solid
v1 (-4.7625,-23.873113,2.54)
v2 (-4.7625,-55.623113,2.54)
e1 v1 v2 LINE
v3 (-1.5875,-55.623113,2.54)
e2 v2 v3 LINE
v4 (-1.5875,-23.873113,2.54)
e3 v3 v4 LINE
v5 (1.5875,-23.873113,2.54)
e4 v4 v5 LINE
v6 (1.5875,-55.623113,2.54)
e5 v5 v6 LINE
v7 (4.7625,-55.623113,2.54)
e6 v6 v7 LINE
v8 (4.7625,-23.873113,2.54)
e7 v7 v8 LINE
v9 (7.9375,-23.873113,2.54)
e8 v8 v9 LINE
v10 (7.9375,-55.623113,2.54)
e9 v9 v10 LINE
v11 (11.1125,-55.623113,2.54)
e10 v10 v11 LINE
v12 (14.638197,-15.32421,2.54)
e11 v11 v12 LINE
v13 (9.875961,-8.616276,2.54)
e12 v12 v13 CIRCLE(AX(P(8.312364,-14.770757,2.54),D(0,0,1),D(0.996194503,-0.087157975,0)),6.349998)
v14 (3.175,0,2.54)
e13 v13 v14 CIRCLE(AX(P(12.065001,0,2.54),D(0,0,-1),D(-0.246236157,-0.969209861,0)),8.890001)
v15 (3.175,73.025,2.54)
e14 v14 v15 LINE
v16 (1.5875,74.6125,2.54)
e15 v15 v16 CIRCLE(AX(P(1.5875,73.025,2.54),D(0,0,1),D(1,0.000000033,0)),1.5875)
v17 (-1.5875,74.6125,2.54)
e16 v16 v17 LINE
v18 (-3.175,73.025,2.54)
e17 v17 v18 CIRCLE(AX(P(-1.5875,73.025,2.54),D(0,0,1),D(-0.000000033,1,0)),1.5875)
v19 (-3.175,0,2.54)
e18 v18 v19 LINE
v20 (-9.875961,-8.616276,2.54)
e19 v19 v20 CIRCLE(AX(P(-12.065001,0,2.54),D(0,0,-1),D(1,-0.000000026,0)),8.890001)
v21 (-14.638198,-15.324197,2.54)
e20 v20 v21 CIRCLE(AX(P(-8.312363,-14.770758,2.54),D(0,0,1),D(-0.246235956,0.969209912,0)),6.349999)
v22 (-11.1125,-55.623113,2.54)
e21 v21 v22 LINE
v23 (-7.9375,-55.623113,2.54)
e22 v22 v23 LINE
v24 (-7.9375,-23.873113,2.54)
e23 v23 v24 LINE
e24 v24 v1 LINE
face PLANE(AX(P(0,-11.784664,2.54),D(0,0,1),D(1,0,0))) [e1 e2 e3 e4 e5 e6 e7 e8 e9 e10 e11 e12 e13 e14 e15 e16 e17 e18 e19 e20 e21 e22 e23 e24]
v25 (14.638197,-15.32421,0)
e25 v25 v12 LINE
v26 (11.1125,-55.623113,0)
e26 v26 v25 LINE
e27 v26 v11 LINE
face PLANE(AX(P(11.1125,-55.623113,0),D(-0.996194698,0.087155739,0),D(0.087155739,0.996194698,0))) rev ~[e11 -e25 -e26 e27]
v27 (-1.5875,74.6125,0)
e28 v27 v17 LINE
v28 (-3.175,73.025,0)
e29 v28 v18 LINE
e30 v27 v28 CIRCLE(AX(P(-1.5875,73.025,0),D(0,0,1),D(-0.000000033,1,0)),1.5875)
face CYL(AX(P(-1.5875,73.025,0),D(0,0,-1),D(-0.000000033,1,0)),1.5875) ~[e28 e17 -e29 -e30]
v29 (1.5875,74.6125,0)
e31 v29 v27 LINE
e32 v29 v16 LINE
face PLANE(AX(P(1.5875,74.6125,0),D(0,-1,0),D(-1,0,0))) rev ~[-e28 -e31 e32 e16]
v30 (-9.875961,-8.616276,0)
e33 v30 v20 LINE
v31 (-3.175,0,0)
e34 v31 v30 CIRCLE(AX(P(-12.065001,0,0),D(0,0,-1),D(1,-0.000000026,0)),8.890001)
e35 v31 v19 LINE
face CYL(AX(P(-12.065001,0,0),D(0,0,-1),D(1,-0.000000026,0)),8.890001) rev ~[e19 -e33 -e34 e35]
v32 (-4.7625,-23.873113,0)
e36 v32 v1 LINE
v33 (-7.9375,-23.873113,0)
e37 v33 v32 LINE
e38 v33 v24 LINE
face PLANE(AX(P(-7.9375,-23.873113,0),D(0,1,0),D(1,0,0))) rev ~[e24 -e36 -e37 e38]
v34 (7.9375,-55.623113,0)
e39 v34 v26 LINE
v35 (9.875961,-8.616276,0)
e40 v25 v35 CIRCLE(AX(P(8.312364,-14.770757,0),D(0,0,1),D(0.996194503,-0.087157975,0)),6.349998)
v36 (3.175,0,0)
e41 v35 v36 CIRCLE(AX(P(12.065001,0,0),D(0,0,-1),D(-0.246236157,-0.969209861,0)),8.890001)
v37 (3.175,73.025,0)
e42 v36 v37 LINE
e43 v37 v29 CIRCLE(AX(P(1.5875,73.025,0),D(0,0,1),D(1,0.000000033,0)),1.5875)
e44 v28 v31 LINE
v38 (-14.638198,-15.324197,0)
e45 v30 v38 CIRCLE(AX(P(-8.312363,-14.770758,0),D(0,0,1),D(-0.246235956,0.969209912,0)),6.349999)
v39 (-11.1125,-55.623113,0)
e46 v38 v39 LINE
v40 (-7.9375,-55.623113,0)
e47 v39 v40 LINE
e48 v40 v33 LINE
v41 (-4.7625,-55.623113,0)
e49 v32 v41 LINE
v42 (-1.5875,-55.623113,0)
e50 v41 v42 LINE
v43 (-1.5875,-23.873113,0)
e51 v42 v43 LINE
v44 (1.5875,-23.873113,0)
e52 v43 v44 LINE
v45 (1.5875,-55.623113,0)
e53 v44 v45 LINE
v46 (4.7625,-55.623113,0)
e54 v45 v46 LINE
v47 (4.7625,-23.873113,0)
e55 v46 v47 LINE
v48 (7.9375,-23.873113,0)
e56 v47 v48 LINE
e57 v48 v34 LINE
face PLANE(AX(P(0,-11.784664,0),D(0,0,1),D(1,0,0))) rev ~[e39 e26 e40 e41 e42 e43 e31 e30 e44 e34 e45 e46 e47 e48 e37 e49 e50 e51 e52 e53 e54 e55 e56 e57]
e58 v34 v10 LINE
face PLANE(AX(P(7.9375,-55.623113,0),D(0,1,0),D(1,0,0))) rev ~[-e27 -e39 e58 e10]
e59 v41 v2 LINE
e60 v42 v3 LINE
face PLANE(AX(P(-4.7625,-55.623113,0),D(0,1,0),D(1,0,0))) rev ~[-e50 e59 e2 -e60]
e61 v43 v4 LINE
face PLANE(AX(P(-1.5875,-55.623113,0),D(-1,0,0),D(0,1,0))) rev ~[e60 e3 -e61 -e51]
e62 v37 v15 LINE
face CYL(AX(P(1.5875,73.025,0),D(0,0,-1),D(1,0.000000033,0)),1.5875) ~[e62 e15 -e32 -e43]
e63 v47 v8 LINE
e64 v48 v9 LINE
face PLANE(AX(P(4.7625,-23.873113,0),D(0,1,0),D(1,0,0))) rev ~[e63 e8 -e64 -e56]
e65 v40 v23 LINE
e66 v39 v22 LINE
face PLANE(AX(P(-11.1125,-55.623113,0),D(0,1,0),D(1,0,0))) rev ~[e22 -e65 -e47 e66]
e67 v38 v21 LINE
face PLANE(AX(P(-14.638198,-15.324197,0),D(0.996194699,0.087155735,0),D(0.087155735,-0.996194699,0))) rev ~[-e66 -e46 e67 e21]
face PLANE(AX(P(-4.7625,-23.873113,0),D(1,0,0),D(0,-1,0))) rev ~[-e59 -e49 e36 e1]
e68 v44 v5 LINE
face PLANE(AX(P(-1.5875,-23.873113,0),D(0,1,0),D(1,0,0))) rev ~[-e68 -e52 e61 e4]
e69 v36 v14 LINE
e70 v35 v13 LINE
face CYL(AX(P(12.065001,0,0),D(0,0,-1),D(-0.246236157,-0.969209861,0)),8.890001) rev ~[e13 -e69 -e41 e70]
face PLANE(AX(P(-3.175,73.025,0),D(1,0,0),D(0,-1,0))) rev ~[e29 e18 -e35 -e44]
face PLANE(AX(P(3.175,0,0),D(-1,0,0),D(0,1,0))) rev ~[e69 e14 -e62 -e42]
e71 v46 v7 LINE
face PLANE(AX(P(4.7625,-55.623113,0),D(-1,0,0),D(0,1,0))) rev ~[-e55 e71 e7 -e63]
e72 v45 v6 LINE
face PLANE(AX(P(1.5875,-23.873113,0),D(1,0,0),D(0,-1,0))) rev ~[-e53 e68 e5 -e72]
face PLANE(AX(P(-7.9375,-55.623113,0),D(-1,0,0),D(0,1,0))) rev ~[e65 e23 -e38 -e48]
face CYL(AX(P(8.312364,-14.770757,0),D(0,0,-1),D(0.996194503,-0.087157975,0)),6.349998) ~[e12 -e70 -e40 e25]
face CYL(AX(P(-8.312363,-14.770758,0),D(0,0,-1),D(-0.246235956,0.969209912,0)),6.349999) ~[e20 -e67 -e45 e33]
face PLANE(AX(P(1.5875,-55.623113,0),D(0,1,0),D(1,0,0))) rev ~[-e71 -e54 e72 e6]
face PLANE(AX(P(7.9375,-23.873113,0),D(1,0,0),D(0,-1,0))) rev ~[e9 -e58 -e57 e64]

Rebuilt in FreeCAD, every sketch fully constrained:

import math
import FreeCAD as App
import Part
import Sketcher
Q = App.Units.Quantity

doc = App.newDocument("Part")
body = doc.addObject("PartDesign::Body", "Body")

# Sketch on XY plane
sketch1 = body.newObject("Sketcher::SketchObject", "Sketch")
sketch1.AttachmentSupport = (doc.getObject("XY_Plane"), [""])
sketch1.MapMode = "FlatFace"
sketch1.addGeometry([
    Part.LineSegment(App.Vector(1.6, 74.6, 0), App.Vector(-1.6, 74.6, 0)),  # 0
    Part.ArcOfCircle(Part.Circle(App.Vector(-1.6, 73, 0), App.Vector(0, 0, 1), 1.6), math.radians(90), math.radians(180)),  # 1
    Part.LineSegment(App.Vector(-3.2, 73, 0), App.Vector(-3.2, 0, 0)),  # 2
    Part.ArcOfCircle(Part.Circle(App.Vector(-12.1, 0, 0), App.Vector(0, 0, 1), 8.9), math.radians(-76), math.radians(0)),  # 3
    Part.ArcOfCircle(Part.Circle(App.Vector(-8.3, -14.8, 0), App.Vector(0, 0, 1), 6.3), math.radians(104), math.radians(185)),  # 4
    Part.LineSegment(App.Vector(-14.6, -15.3, 0), App.Vector(-11.1, -55.6, 0)),  # 5
    Part.LineSegment(App.Vector(-11.1, -55.6, 0), App.Vector(-7.9, -55.6, 0)),  # 6
    Part.LineSegment(App.Vector(-7.9, -55.6, 0), App.Vector(-7.9, -23.9, 0)),  # 7
    Part.LineSegment(App.Vector(-7.9, -23.9, 0), App.Vector(-4.8, -23.9, 0)),  # 8
    Part.LineSegment(App.Vector(-4.8, -23.9, 0), App.Vector(-4.8, -55.6, 0)),  # 9
    Part.LineSegment(App.Vector(-4.8, -55.6, 0), App.Vector(-1.6, -55.6, 0)),  # 10
    Part.LineSegment(App.Vector(-1.6, -55.6, 0), App.Vector(-1.6, -23.9, 0)),  # 11
    Part.LineSegment(App.Vector(-1.6, -23.9, 0), App.Vector(1.6, -23.9, 0)),  # 12
    Part.LineSegment(App.Vector(1.6, -23.9, 0), App.Vector(1.6, -55.6, 0)),  # 13
    Part.LineSegment(App.Vector(1.6, -55.6, 0), App.Vector(4.8, -55.6, 0)),  # 14
    Part.LineSegment(App.Vector(4.8, -55.6, 0), App.Vector(4.8, -23.9, 0)),  # 15
    Part.LineSegment(App.Vector(4.8, -23.9, 0), App.Vector(7.9, -23.9, 0)),  # 16
    Part.LineSegment(App.Vector(7.9, -23.9, 0), App.Vector(7.9, -55.6, 0)),  # 17
    Part.LineSegment(App.Vector(7.9, -55.6, 0), App.Vector(11.1, -55.6, 0)),  # 18
    Part.LineSegment(App.Vector(11.1, -55.6, 0), App.Vector(14.6, -15.3, 0)),  # 19
    Part.ArcOfCircle(Part.Circle(App.Vector(8.3, -14.8, 0), App.Vector(0, 0, 1), 6.3), math.radians(-5), math.radians(76)),  # 20
    Part.ArcOfCircle(Part.Circle(App.Vector(12.1, 0, 0), App.Vector(0, 0, 1), 8.9), math.radians(-180), math.radians(-104)),  # 21
    Part.LineSegment(App.Vector(3.2, 0, 0), App.Vector(3.2, 73, 0)),  # 22
    Part.ArcOfCircle(Part.Circle(App.Vector(1.6, 73, 0), App.Vector(0, 0, 1), 1.6), math.radians(0), math.radians(90)),  # 23
], False)
sketch1.addConstraint([
    Sketcher.Constraint("Tangent", 0, 2, 1, 1),
    Sketcher.Constraint("Tangent", 1, 2, 2, 1),
    Sketcher.Constraint("Tangent", 2, 2, 3, 2),
    Sketcher.Constraint("Tangent", 3, 1, 4, 1),
    Sketcher.Constraint("Tangent", 4, 2, 5, 1),
    Sketcher.Constraint("Coincident", 5, 2, 6, 1),
    Sketcher.Constraint("Coincident", 6, 2, 7, 1),
    Sketcher.Constraint("Coincident", 7, 2, 8, 1),
    Sketcher.Constraint("Coincident", 8, 2, 9, 1),
    Sketcher.Constraint("Coincident", 9, 2, 10, 1),
    Sketcher.Constraint("Coincident", 10, 2, 11, 1),
    Sketcher.Constraint("Coincident", 11, 2, 12, 1),
    Sketcher.Constraint("Coincident", 12, 2, 13, 1),
    Sketcher.Constraint("Coincident", 13, 2, 14, 1),
    Sketcher.Constraint("Coincident", 14, 2, 15, 1),
    Sketcher.Constraint("Coincident", 15, 2, 16, 1),
    Sketcher.Constraint("Coincident", 16, 2, 17, 1),
    Sketcher.Constraint("Coincident", 17, 2, 18, 1),
    Sketcher.Constraint("Coincident", 18, 2, 19, 1),
    Sketcher.Constraint("Coincident", 19, 2, 20, 1),
    Sketcher.Constraint("Tangent", 20, 2, 21, 2),
    Sketcher.Constraint("Tangent", 21, 1, 22, 1),
    Sketcher.Constraint("Tangent", 22, 2, 23, 1),
    Sketcher.Constraint("Tangent", 23, 2, 0, 1),
    Sketcher.Constraint("Horizontal", 0),
    Sketcher.Constraint("Vertical", 2),
    Sketcher.Constraint("Horizontal", 6),
    Sketcher.Constraint("Vertical", 7),
    Sketcher.Constraint("Horizontal", 8),
    Sketcher.Constraint("Vertical", 9),
    Sketcher.Constraint("Horizontal", 10),
    Sketcher.Constraint("Vertical", 11),
    Sketcher.Constraint("Horizontal", 12),
    Sketcher.Constraint("Vertical", 13),
    Sketcher.Constraint("Horizontal", 14),
    Sketcher.Constraint("Vertical", 15),
    Sketcher.Constraint("Horizontal", 16),
    Sketcher.Constraint("Vertical", 17),
    Sketcher.Constraint("Horizontal", 18),
    Sketcher.Constraint("Vertical", 22),
    Sketcher.Constraint("Equal", 4, 20),
    Sketcher.Constraint("Equal", 3, 21),
    Sketcher.Constraint("Equal", 1, 23),
    Sketcher.Constraint("Symmetric", 3, 3, 21, 3, -1, 1),
    Sketcher.Constraint("Symmetric", 4, 3, 20, 3, -2),
    Sketcher.Constraint("Symmetric", 10, 2, 13, 2, -2),
    Sketcher.Constraint("Symmetric", 8, 2, 15, 2, -2),
    Sketcher.Constraint("Symmetric", 6, 2, 17, 2, -2),
    Sketcher.Constraint("Horizontal", 6, 2, 9, 2),
    Sketcher.Constraint("Horizontal", 8, 2, 11, 2),
    Sketcher.Constraint("Vertical", 0, 2, 10, 2),
    Sketcher.Constraint("Equal", 0, 6),
    Sketcher.Constraint("Equal", 6, 8),
    Sketcher.Constraint("Equal", 8, 10),
    Sketcher.Constraint("Equal", 16, 18),
    Sketcher.Constraint("Radius", 3, Q("0.35 in")),
    Sketcher.Constraint("Radius", 4, Q("0.2499999 in")),
    Sketcher.Constraint("Angle", 5, Q("-85 deg")),
    Sketcher.Constraint("Radius", 1, Q("0.0625 in")),
    Sketcher.Constraint("DistanceY", 7, 1, 7, 2, Q("1.25 in")),
    Sketcher.Constraint("DistanceX", 1, 2, 21, 3, Q("0.6 in")),
    Sketcher.Constraint("DistanceY", 2, 2, 2, 1, Q("2.875 in")),
    Sketcher.Constraint("DistanceX", 4, 2, -1, 1, 14.638198),
    Sketcher.Constraint("Distance", 19, 40.452838),
])
pad1 = body.newObject("PartDesign::Pad", "Pad")
pad1.Profile = sketch1
pad1.Length = Q("0.1 in")

doc.recompute()
